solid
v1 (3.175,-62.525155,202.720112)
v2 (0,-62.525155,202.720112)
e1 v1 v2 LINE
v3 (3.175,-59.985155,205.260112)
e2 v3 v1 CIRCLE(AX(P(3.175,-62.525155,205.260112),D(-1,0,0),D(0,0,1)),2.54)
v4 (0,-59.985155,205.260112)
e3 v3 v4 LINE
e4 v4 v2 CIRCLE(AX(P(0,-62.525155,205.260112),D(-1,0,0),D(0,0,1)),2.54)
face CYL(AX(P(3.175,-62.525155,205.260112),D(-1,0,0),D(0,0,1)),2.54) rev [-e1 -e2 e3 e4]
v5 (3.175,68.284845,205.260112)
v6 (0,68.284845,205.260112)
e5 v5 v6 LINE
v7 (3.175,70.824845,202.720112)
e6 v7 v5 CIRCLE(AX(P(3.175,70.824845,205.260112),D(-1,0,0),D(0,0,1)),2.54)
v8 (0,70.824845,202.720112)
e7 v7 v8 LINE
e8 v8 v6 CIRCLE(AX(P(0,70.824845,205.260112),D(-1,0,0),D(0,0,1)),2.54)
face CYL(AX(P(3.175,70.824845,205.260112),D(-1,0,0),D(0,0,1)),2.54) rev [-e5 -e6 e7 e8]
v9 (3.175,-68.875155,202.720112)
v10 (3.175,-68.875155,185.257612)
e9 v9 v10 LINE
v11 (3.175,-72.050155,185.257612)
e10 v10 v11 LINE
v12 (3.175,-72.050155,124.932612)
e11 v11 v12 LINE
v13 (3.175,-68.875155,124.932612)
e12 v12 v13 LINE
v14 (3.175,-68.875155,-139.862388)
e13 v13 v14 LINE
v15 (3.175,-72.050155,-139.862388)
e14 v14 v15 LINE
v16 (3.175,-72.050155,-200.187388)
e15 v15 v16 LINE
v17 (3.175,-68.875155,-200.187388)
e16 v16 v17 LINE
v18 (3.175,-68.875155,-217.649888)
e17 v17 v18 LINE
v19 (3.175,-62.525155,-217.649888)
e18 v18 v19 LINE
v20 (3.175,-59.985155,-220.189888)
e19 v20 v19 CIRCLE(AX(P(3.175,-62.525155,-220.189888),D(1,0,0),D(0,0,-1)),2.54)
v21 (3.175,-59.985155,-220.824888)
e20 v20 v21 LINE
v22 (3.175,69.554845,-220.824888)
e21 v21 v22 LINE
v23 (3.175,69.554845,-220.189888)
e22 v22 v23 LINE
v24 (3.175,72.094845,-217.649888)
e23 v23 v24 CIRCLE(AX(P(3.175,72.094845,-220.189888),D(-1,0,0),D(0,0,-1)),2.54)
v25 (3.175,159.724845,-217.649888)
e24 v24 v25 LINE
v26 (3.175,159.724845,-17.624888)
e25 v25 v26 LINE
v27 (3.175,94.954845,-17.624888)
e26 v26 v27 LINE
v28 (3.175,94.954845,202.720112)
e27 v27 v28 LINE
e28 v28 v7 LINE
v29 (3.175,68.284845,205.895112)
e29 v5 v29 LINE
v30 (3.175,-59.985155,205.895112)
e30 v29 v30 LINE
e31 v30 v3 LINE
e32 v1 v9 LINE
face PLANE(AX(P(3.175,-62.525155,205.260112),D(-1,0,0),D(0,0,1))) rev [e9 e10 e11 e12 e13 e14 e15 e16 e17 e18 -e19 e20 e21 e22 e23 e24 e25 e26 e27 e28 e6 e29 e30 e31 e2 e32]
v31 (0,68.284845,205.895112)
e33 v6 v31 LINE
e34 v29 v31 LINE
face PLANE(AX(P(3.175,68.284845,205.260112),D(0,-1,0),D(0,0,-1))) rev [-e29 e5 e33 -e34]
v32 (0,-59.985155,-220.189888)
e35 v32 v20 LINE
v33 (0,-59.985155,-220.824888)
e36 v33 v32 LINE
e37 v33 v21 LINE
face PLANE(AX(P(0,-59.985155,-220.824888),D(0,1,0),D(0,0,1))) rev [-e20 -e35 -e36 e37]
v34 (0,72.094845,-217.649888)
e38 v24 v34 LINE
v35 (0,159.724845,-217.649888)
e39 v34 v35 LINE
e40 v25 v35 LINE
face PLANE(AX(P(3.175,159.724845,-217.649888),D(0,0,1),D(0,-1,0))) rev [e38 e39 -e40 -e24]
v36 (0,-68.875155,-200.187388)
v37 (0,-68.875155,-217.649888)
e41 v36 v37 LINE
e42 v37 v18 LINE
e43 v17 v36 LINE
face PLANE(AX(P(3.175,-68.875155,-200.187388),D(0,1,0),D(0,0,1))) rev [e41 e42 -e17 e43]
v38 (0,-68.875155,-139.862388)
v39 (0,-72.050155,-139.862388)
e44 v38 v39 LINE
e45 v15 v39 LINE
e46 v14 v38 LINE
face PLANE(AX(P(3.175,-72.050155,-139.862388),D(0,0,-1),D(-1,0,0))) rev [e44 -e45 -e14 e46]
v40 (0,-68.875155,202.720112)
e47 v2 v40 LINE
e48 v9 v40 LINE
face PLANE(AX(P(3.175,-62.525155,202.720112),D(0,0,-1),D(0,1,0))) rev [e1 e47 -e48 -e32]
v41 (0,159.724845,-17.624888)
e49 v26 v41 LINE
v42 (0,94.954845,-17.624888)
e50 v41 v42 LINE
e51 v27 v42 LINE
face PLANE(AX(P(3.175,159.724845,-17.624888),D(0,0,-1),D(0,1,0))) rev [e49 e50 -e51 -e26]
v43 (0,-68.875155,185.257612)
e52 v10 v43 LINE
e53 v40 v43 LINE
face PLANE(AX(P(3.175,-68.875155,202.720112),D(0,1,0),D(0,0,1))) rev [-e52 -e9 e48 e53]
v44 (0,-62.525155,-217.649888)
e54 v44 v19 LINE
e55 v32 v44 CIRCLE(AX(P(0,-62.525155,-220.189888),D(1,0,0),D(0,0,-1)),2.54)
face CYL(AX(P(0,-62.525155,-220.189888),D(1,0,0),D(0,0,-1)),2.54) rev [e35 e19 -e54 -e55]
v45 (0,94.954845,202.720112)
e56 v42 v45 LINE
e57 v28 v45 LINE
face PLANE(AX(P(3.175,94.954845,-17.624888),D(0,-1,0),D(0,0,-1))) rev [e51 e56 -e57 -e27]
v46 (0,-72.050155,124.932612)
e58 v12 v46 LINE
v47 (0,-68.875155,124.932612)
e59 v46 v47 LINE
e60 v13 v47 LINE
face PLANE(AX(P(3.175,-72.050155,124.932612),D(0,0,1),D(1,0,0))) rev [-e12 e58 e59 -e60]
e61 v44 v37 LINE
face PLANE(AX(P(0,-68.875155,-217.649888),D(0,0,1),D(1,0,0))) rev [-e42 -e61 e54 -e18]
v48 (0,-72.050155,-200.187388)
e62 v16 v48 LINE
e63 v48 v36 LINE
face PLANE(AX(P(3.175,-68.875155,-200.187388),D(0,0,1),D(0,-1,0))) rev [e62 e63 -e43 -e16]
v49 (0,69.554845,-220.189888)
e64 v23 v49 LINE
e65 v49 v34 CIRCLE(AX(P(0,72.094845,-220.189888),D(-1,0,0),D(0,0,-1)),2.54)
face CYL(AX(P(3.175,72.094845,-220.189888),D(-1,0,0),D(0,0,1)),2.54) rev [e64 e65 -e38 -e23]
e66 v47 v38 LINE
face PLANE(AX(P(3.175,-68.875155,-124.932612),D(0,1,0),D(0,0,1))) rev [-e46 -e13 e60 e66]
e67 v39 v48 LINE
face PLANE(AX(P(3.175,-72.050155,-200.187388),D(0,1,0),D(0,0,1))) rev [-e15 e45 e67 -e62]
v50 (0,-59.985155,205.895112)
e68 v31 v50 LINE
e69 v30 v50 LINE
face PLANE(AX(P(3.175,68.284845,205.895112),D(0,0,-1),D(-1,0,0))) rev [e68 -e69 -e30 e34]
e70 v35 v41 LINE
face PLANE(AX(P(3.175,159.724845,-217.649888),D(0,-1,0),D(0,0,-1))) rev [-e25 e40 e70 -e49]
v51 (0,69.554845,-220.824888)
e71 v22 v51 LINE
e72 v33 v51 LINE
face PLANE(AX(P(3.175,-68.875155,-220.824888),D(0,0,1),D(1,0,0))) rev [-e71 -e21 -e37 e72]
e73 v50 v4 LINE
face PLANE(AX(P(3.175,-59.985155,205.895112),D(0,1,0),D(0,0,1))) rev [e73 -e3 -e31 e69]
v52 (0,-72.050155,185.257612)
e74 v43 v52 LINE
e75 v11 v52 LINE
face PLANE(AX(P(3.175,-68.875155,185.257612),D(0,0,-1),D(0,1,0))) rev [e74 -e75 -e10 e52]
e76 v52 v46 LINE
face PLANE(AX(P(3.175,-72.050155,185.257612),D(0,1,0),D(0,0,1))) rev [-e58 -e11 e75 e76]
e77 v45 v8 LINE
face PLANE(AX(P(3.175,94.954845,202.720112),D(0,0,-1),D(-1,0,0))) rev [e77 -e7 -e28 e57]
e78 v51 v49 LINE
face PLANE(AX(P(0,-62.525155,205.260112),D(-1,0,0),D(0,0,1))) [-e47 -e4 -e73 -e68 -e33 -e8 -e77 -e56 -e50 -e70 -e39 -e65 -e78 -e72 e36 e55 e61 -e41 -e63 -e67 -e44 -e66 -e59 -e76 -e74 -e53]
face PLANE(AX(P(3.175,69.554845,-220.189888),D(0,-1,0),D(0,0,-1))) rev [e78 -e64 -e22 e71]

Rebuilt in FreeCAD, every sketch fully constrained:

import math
import FreeCAD as App
import Part
import Sketcher
from FreeCAD import Vector
Q = App.Units.Quantity

doc = App.newDocument("Part")
params = doc.addObject("Spreadsheet::Sheet", "Params")
for row, (alias, value) in enumerate([
    ("sketch1_radius", "0.1 in"),
    ("sketch1_width", "5.45 in"),
    ("sketch1_width2", "0.95 in"),
    ("sketch1_width3", "5.05 in"),
    ("sketch1_width4", "0.125 in"),
    ("pad1_length", "0.125 in"),
    ("sketch2_radius", "0.1 in"),
    ("sketch2_width", "0.35 in"),
    ("sketch2_height", "0.125 in"),
], start=1):
    params.set(f"A{row}", alias)
    params.set(f"B{row}", "=" + value)
    params.setAlias(f"B{row}", alias)

body = doc.addObject("PartDesign::Body", "Body")

# Sketch on YZ plane
sketch1 = doc.addObject("Sketcher::SketchObject", "Sketch")
body.addObject(sketch1)
sketch1.AttachmentSupport = (doc.YZ_Plane, [""])
sketch1.MapMode = "FlatFace"
sketch1.addGeometry(Part.LineSegment(Vector(-68.875155, 202.720112, 0), Vector(-68.875155, 185.257612, 0)), False)
sketch1.addGeometry(Part.LineSegment(Vector(-68.875155, 185.257612, 0), Vector(-72.050155, 185.257612, 0)), False)
sketch1.addGeometry(Part.LineSegment(Vector(-72.050155, 185.257612, 0), Vector(-72.050155, 124.932612, 0)), False)
sketch1.addGeometry(Part.LineSegment(Vector(-72.050155, 124.932612, 0), Vector(-68.875155, 124.932612, 0)), False)
sketch1.addGeometry(Part.LineSegment(Vector(-68.875155, 124.932612, 0), Vector(-68.875155, -139.862388, 0)), False)
sketch1.addGeometry(Part.LineSegment(Vector(-68.875155, -139.862388, 0), Vector(-72.050155, -139.862388, 0)), False)
sketch1.addGeometry(Part.LineSegment(Vector(-72.050155, -139.862388, 0), Vector(-72.050155, -200.187388, 0)), False)
sketch1.addGeometry(Part.LineSegment(Vector(-72.050155, -200.187388, 0), Vector(-68.875155, -200.187388, 0)), False)
sketch1.addGeometry(Part.LineSegment(Vector(-68.875155, -200.187388, 0), Vector(-68.875155, -220.824888, 0)), False)
sketch1.addGeometry(Part.LineSegment(Vector(-68.875155, -220.824888, 0), Vector(69.554845, -220.824888, 0)), False)
sketch1.addGeometry(Part.LineSegment(Vector(69.554845, -220.824888, 0), Vector(69.554845, -220.189888, 0)), False)
sketch1.addGeometry(Part.ArcOfCircle(Part.Circle(Vector(72.094845, -220.189888, 0), Vector(0, 0, 1), 2.54), math.radians(90), math.radians(180)), False)
sketch1.addGeometry(Part.LineSegment(Vector(72.094845, -217.649888, 0), Vector(159.724845, -217.649888, 0)), False)
sketch1.addGeometry(Part.LineSegment(Vector(159.724845, -217.649888, 0), Vector(159.724845, -17.624888, 0)), False)
sketch1.addGeometry(Part.LineSegment(Vector(159.724845, -17.624888, 0), Vector(94.954845, -17.624888, 0)), False)
sketch1.addGeometry(Part.LineSegment(Vector(94.954845, -17.624888, 0), Vector(94.954845, 202.720112, 0)), False)
sketch1.addGeometry(Part.LineSegment(Vector(94.954845, 202.720112, 0), Vector(70.824845, 202.720112, 0)), False)
sketch1.addGeometry(Part.ArcOfCircle(Part.Circle(Vector(70.824845, 205.260112, 0), Vector(0, 0, 1), 2.54), math.radians(180), math.radians(270)), False)
sketch1.addGeometry(Part.LineSegment(Vector(68.284845, 205.260112, 0), Vector(68.284845, 205.895112, 0)), False)
sketch1.addGeometry(Part.LineSegment(Vector(68.284845, 205.895112, 0), Vector(-59.985155, 205.895112, 0)), False)
sketch1.addGeometry(Part.LineSegment(Vector(-59.985155, 205.895112, 0), Vector(-59.985155, 205.260112, 0)), False)
sketch1.addGeometry(Part.ArcOfCircle(Part.Circle(Vector(-62.525155, 205.260112, 0), Vector(0, 0, 1), 2.54), math.radians(-90), math.radians(0)), False)
sketch1.addGeometry(Part.LineSegment(Vector(-62.525155, 202.720112, 0), Vector(-68.875155, 202.720112, 0)), False)
sketch1.addConstraint(Sketcher.Constraint("Coincident", 0, 2, 1, 1))
sketch1.addConstraint(Sketcher.Constraint("Coincident", 1, 2, 2, 1))
sketch1.addConstraint(Sketcher.Constraint("Coincident", 2, 2, 3, 1))
sketch1.addConstraint(Sketcher.Constraint("Coincident", 3, 2, 4, 1))
sketch1.addConstraint(Sketcher.Constraint("Coincident", 4, 2, 5, 1))
sketch1.addConstraint(Sketcher.Constraint("Coincident", 5, 2, 6, 1))
sketch1.addConstraint(Sketcher.Constraint("Coincident", 6, 2, 7, 1))
sketch1.addConstraint(Sketcher.Constraint("Coincident", 7, 2, 8, 1))
sketch1.addConstraint(Sketcher.Constraint("Coincident", 8, 2, 9, 1))
sketch1.addConstraint(Sketcher.Constraint("Coincident", 9, 2, 10, 1))
sketch1.addConstraint(Sketcher.Constraint("Tangent", 10, 2, 11, 2))
sketch1.addConstraint(Sketcher.Constraint("Tangent", 11, 1, 12, 1))
sketch1.addConstraint(Sketcher.Constraint("Coincident", 12, 2, 13, 1))
sketch1.addConstraint(Sketcher.Constraint("Coincident", 13, 2, 14, 1))
sketch1.addConstraint(Sketcher.Constraint("Coincident", 14, 2, 15, 1))
sketch1.addConstraint(Sketcher.Constraint("Coincident", 15, 2, 16, 1))
sketch1.addConstraint(Sketcher.Constraint("Tangent", 16, 2, 17, 2))
sketch1.addConstraint(Sketcher.Constraint("Tangent", 17, 1, 18, 1))
sketch1.addConstraint(Sketcher.Constraint("Coincident", 18, 2, 19, 1))
sketch1.addConstraint(Sketcher.Constraint("Coincident", 19, 2, 20, 1))
sketch1.addConstraint(Sketcher.Constraint("Tangent", 20, 2, 21, 2))
sketch1.addConstraint(Sketcher.Constraint("Tangent", 21, 1, 22, 1))
sketch1.addConstraint(Sketcher.Constraint("Coincident", 22, 2, 0, 1))
sketch1.addConstraint(Sketcher.Constraint("Vertical", 0))
sketch1.addConstraint(Sketcher.Constraint("Horizontal", 1))
sketch1.addConstraint(Sketcher.Constraint("Vertical", 2))
sketch1.addConstraint(Sketcher.Constraint("Horizontal", 3))
sketch1.addConstraint(Sketcher.Constraint("Vertical", 4))
sketch1.addConstraint(Sketcher.Constraint("Horizontal", 5))
sketch1.addConstraint(Sketcher.Constraint("Vertical", 6))
sketch1.addConstraint(Sketcher.Constraint("Horizontal", 7))
sketch1.addConstraint(Sketcher.Constraint("Vertical", 8))
sketch1.addConstraint(Sketcher.Constraint("Horizontal", 9))
sketch1.addConstraint(Sketcher.Constraint("Vertical", 10))
sketch1.addConstraint(Sketcher.Constraint("Horizontal", 12))
sketch1.addConstraint(Sketcher.Constraint("Vertical", 13))
sketch1.addConstraint(Sketcher.Constraint("Horizontal", 14))
sketch1.addConstraint(Sketcher.Constraint("Vertical", 15))
sketch1.addConstraint(Sketcher.Constraint("Horizontal", 16))
sketch1.addConstraint(Sketcher.Constraint("Vertical", 18))
sketch1.addConstraint(Sketcher.Constraint("Horizontal", 19))
sketch1.addConstraint(Sketcher.Constraint("Vertical", 20))
sketch1.addConstraint(Sketcher.Constraint("Horizontal", 22))
sketch1.addConstraint(Sketcher.Constraint("Equal", 11, 17))
sketch1.addConstraint(Sketcher.Constraint("Equal", 17, 21))
sketch1.addConstraint(Sketcher.Constraint("Horizontal", 17, 3, 21, 3))
sketch1.addConstraint(Sketcher.Constraint("Vertical", 0, 2, 3, 2))
sketch1.addConstraint(Sketcher.Constraint("Vertical", 2, 2, 5, 2))
sketch1.addConstraint(Sketcher.Constraint("Vertical", 4, 2, 7, 2))
sketch1.addConstraint(Sketcher.Constraint("Equal", 2, 6))
sketch1.addConstraint(Sketcher.Constraint("Equal", 10, 18))
sketch1.addConstraint(Sketcher.Constraint("Radius", 11, Q("0.1 in")))
sketch1.addConstraint(Sketcher.Constraint("DistanceX", 8, 2, 12, 2, Q("9 in")))
sketch1.addConstraint(Sketcher.Constraint("DistanceY", 9, 2, 13, 2, Q("8 in")))
sketch1.addConstraint(Sketcher.Constraint("DistanceX", 10, 2, 14, 2, Q("1 in")))
sketch1.addConstraint(Sketcher.Constraint("DistanceX", 9, 1, 9, 2, Q("5.45 in")))
sketch1.addConstraint(Sketcher.Constraint("DistanceX", 16, 2, 16, 1, Q("0.95 in")))
sketch1.addConstraint(Sketcher.Constraint("DistanceX", 19, 2, 19, 1, Q("5.05 in")))
sketch1.addConstraint(Sketcher.Constraint("DistanceY", 4, 2, 0, 2, Q("12.8 in")))
sketch1.addConstraint(Sketcher.Constraint("DistanceX", 1, 2, 1, 1, Q("0.125 in")))
sketch1.addConstraint(Sketcher.Constraint("DistanceY", 0, 2, 0, 1, Q("0.6875 in")))
sketch1.addConstraint(Sketcher.Constraint("DistanceY", 2, 2, 2, 1, Q("2.375 in")))
sketch1.addConstraint(Sketcher.Constraint("DistanceY", 8, 2, 8, 1, Q("0.8125 in")))
sketch1.addConstraint(Sketcher.Constraint("DistanceY", 10, 1, 10, 2, Q("0.025 in")))
sketch1.addConstraint(Sketcher.Constraint("DistanceY", 11, 3, -1, 1, Q("220.189888 mm")))
sketch1.addConstraint(Sketcher.Constraint("DistanceX", -1, 1, 11, 3, Q("72.094845 mm")))
sketch1.setExpression("Constraints[51]", "Params.sketch1_radius")
sketch1.setExpression("Constraints[55]", "Params.sketch1_width")
sketch1.setExpression("Constraints[56]", "Params.sketch1_width2")
sketch1.setExpression("Constraints[57]", "Params.sketch1_width3")
sketch1.setExpression("Constraints[59]", "Params.sketch1_width4")
pad1 = doc.addObject("PartDesign::Pad", "Pad")
body.addObject(pad1)
pad1.Profile = sketch1
pad1.setExpression("Length", "Params.pad1_length")

# Sketch on YZ plane
sketch2 = doc.addObject("Sketcher::SketchObject", "Sketch001")
body.addObject(sketch2)
sketch2.AttachmentSupport = (doc.YZ_Plane, [""])
sketch2.MapMode = "FlatFace"
sketch2.AttachmentOffset = App.Placement(Vector(0, 0, 0.125 * 25.4), App.Rotation())
sketch2.addGeometry(Part.LineSegment(Vector(-68.875155, -217.649888, 0), Vector(-68.875155, -220.824888, 0)), False)
sketch2.addGeometry(Part.LineSegment(Vector(-68.875155, -220.824888, 0), Vector(-59.985155, -220.824888, 0)), False)
sketch2.addGeometry(Part.LineSegment(Vector(-59.985155, -220.824888, 0), Vector(-59.985155, -220.189888, 0)), False)
sketch2.addGeometry(Part.ArcOfCircle(Part.Circle(Vector(-62.525155, -220.189888, 0), Vector(0, 0, 1), 2.54), math.radians(0), math.radians(90)), False)
sketch2.addGeometry(Part.LineSegment(Vector(-62.525155, -217.649888, 0), Vector(-68.875155, -217.649888, 0)), False)
sketch2.addConstraint(Sketcher.Constraint("Coincident", 0, 2, 1, 1))
sketch2.addConstraint(Sketcher.Constraint("Coincident", 1, 2, 2, 1))
sketch2.addConstraint(Sketcher.Constraint("Tangent", 2, 2, 3, 1))
sketch2.addConstraint(Sketcher.Constraint("Tangent", 3, 2, 4, 1))
sketch2.addConstraint(Sketcher.Constraint("Coincident", 4, 2, 0, 1))
sketch2.addConstraint(Sketcher.Constraint("Vertical", 0))
sketch2.addConstraint(Sketcher.Constraint("Horizontal", 1))
sketch2.addConstraint(Sketcher.Constraint("Vertical", 2))
sketch2.addConstraint(Sketcher.Constraint("Horizontal", 4))
sketch2.addConstraint(Sketcher.Constraint("Radius", 3, Q("0.1 in")))
sketch2.addConstraint(Sketcher.Constraint("DistanceX", 1, 1, 1, 2, Q("0.35 in")))
sketch2.addConstraint(Sketcher.Constraint("DistanceY", 0, 2, 0, 1, Q("0.125 in")))
sketch2.addConstraint(Sketcher.Constraint("DistanceY", 3, 3, -1, 1, Q("220.189888 mm")))
sketch2.addConstraint(Sketcher.Constraint("DistanceX", 3, 3, -1, 1, Q("62.525155 mm")))
sketch2.setExpression("Constraints[9]", "Params.sketch2_radius")
sketch2.setExpression("Constraints[10]", "Params.sketch2_width")
sketch2.setExpression("Constraints[11]", "Params.sketch2_height")
pocket1 = doc.addObject("PartDesign::Pocket", "Pocket")
body.addObject(pocket1)
pocket1.Profile = sketch2
pocket1.Type = "ThroughAll"
pocket1.Midplane = True

doc.recompute()
